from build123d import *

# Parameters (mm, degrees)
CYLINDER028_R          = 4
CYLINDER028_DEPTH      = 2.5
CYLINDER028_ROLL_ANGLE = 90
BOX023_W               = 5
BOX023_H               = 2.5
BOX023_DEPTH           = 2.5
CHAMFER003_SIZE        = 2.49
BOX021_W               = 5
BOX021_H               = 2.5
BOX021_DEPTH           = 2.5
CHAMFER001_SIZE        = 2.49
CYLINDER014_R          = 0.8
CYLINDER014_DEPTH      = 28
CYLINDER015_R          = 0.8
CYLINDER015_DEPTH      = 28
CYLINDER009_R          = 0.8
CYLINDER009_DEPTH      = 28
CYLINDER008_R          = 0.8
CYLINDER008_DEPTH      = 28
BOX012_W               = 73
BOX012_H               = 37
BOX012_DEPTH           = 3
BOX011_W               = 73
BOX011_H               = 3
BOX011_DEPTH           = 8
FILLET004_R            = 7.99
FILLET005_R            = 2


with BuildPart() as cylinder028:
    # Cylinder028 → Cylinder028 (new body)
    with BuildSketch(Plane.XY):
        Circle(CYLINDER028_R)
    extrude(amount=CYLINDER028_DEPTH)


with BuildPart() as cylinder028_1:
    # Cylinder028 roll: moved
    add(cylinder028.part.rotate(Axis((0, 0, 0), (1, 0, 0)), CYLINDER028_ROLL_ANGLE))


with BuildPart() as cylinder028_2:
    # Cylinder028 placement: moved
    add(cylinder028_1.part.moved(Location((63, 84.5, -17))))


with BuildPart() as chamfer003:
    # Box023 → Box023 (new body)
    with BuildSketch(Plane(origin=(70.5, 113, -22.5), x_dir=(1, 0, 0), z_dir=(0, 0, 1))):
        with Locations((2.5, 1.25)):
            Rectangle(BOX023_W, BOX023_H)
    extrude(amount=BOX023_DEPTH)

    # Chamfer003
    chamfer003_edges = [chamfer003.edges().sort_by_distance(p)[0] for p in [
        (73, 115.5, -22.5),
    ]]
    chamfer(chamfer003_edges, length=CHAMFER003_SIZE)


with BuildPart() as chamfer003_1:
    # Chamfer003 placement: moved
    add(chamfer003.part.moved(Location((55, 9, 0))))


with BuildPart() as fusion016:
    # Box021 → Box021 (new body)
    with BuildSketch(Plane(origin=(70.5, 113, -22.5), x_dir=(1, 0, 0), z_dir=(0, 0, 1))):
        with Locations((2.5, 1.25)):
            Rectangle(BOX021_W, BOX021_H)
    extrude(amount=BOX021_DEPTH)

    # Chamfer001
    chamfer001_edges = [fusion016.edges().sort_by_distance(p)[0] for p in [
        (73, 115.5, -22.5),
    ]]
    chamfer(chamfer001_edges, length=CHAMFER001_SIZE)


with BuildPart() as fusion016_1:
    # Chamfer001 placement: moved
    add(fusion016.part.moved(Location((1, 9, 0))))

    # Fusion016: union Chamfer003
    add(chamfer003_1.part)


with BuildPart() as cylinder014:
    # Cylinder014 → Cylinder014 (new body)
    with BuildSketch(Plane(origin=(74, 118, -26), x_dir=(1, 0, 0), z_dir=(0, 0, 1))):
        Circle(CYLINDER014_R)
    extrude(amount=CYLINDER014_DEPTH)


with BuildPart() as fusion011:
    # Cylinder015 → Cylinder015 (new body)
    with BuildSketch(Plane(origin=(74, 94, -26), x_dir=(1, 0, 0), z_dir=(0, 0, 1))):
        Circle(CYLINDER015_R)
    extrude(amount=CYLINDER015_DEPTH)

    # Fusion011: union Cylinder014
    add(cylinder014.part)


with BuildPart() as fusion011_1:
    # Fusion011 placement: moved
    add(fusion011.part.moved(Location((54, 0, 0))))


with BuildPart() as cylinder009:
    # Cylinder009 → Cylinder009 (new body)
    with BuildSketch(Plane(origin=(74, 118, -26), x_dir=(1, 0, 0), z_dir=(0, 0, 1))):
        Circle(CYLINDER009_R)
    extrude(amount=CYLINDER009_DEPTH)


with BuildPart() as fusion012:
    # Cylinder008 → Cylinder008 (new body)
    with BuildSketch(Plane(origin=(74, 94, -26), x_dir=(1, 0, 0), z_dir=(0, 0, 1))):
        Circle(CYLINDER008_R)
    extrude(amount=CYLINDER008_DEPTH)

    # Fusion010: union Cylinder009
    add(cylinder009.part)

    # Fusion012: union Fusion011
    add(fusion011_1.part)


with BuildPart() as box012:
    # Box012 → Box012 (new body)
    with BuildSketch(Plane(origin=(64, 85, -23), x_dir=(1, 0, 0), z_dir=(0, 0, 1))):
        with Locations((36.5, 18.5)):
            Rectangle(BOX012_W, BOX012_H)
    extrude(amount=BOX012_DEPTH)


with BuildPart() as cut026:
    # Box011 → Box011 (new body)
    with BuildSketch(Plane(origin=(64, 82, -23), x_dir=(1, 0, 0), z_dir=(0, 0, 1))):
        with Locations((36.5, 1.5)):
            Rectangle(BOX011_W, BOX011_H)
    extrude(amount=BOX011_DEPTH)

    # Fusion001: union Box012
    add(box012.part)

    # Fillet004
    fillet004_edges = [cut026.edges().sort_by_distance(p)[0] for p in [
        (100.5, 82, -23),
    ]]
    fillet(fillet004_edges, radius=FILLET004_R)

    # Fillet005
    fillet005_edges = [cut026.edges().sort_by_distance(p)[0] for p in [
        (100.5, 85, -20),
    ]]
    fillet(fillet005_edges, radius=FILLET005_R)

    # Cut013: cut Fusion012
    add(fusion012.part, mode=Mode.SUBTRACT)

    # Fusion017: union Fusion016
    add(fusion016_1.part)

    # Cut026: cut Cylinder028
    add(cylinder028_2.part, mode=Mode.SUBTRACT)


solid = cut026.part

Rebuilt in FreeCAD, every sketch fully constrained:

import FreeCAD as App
import Part
import Sketcher

V = App.Vector
Q = App.Units.Quantity


def edges_at(feature, points):
    """Names of the edges that pass closest to the given points."""
    edges = feature.Shape.Edges
    near = lambda p: min(range(len(edges)), key=lambda i: edges[i].distToShape(Part.Vertex(*p))[0])
    return sorted({f"Edge{near(p) + 1}" for p in points})

doc = App.newDocument("Part")
body = doc.addObject("PartDesign::Body", "Body")

sketch1 = body.newObject("Sketcher::SketchObject", "Sketch")
sketch1.AttachmentSupport = (doc.getObject("XY_Plane"), [""])
sketch1.MapMode = "FlatFace"
sketch1.addGeometry(Part.Circle(V(0, 0, 0), V(0, 0, 1), 4), False)
sketch1.addConstraint([
    Sketcher.Constraint("Coincident", 0, 3, -1, 1),
    Sketcher.Constraint("Diameter", 0, Q("8 mm")),
])
pad1 = body.newObject("PartDesign::Pad", "Pad")
pad1.Profile = sketch1
pad1.Length = 2.5
body2 = doc.addObject("PartDesign::Body", "Body001")
doc.recompute()

body.Placement = App.Placement(V(0, 0, 0), App.Rotation(V(1, 0, 0), 90))
boolean = body2.newObject("PartDesign::Boolean", "Boolean")
boolean.Type = "Fuse"
boolean.addObjects([body])
body3 = doc.addObject("PartDesign::Body", "Body002")
doc.recompute()

body2.Placement = App.Placement(V(63, 84.5, -17), App.Rotation(V(0, 0, 1), 0))
boolean2 = body3.newObject("PartDesign::Boolean", "Boolean001")
boolean2.Type = "Fuse"
boolean2.addObjects([body2])
body4 = doc.addObject("PartDesign::Body", "Body003")

sketch2 = body4.newObject("Sketcher::SketchObject", "Sketch001")
sketch2.AttachmentSupport = (doc.getObject("XY_Plane003"), [""])
sketch2.MapMode = "FlatFace"
sketch2.AttachmentOffset = App.Placement(V(0, 0, -22.5), App.Rotation())
sketch2.addGeometry([
    Part.LineSegment(V(70.5, 115.5, 0), V(70.5, 113, 0)),
    Part.LineSegment(V(70.5, 113, 0), V(75.5, 113, 0)),
    Part.LineSegment(V(75.5, 113, 0), V(75.5, 115.5, 0)),
    Part.LineSegment(V(75.5, 115.5, 0), V(70.5, 115.5, 0)),
], False)
sketch2.addConstraint([
    Sketcher.Constraint("Coincident", 0, 2, 1, 1),
    Sketcher.Constraint("Coincident", 1, 2, 2, 1),
    Sketcher.Constraint("Coincident", 2, 2, 3, 1),
    Sketcher.Constraint("Coincident", 3, 2, 0, 1),
    Sketcher.Constraint("Vertical", 0),
    Sketcher.Constraint("Horizontal", 1),
    Sketcher.Constraint("Vertical", 2),
    Sketcher.Constraint("Horizontal", 3),
    Sketcher.Constraint("DistanceX", 1, 1, 1, 2, Q("5 mm")),
    Sketcher.Constraint("DistanceY", 0, 2, 0, 1, Q("2.5 mm")),
    Sketcher.Constraint("DistanceY", -1, 1, 0, 2, Q("113 mm")),
    Sketcher.Constraint("DistanceX", -1, 1, 0, 2, Q("70.5 mm")),
])
pad2 = body4.newObject("PartDesign::Pad", "Pad001")
pad2.Profile = sketch2
pad2.Length = 2.5
doc.recompute()

chamfer = body4.newObject("PartDesign::Chamfer", "Chamfer")
chamfer.Base = (pad2, edges_at(pad2, [(73, 115.5, -22.5)]))
chamfer.Size = 2.49
body5 = doc.addObject("PartDesign::Body", "Body004")
doc.recompute()

body4.Placement = App.Placement(V(55, 9, 0), App.Rotation(V(0, 0, 1), 0))
boolean3 = body5.newObject("PartDesign::Boolean", "Boolean002")
boolean3.Type = "Fuse"
boolean3.addObjects([body4])
body6 = doc.addObject("PartDesign::Body", "Body005")

sketch3 = body6.newObject("Sketcher::SketchObject", "Sketch002")
sketch3.AttachmentSupport = (doc.getObject("XY_Plane005"), [""])
sketch3.MapMode = "FlatFace"
sketch3.AttachmentOffset = App.Placement(V(0, 0, -22.5), App.Rotation())
sketch3.addGeometry([
    Part.LineSegment(V(70.5, 115.5, 0), V(70.5, 113, 0)),
    Part.LineSegment(V(70.5, 113, 0), V(75.5, 113, 0)),
    Part.LineSegment(V(75.5, 113, 0), V(75.5, 115.5, 0)),
    Part.LineSegment(V(75.5, 115.5, 0), V(70.5, 115.5, 0)),
], False)
sketch3.addConstraint([
    Sketcher.Constraint("Coincident", 0, 2, 1, 1),
    Sketcher.Constraint("Coincident", 1, 2, 2, 1),
    Sketcher.Constraint("Coincident", 2, 2, 3, 1),
    Sketcher.Constraint("Coincident", 3, 2, 0, 1),
    Sketcher.Constraint("Vertical", 0),
    Sketcher.Constraint("Horizontal", 1),
    Sketcher.Constraint("Vertical", 2),
    Sketcher.Constraint("Horizontal", 3),
    Sketcher.Constraint("DistanceX", 1, 1, 1, 2, Q("5 mm")),
    Sketcher.Constraint("DistanceY", 0, 2, 0, 1, Q("2.5 mm")),
    Sketcher.Constraint("DistanceY", -1, 1, 0, 2, Q("113 mm")),
    Sketcher.Constraint("DistanceX", -1, 1, 0, 2, Q("70.5 mm")),
])
pad3 = body6.newObject("PartDesign::Pad", "Pad002")
pad3.Profile = sketch3
pad3.Length = 2.5
doc.recompute()

chamfer2 = body6.newObject("PartDesign::Chamfer", "Chamfer001")
chamfer2.Base = (pad3, edges_at(pad3, [(73, 115.5, -22.5)]))
chamfer2.Size = 2.49
body7 = doc.addObject("PartDesign::Body", "Body006")
body7.AllowCompound = True
doc.recompute()

body6.Placement = App.Placement(V(1, 9, 0), App.Rotation(V(0, 0, 1), 0))
boolean4 = body7.newObject("PartDesign::Boolean", "Boolean003")
boolean4.Type = "Fuse"
boolean4.addObjects([body6])
doc.recompute()

boolean5 = body7.newObject("PartDesign::Boolean", "Boolean004")
boolean5.Type = "Fuse"
boolean5.addObjects([body5])
body8 = doc.addObject("PartDesign::Body", "Body007")

sketch4 = body8.newObject("Sketcher::SketchObject", "Sketch003")
sketch4.AttachmentSupport = (doc.getObject("XY_Plane007"), [""])
sketch4.MapMode = "FlatFace"
sketch4.AttachmentOffset = App.Placement(V(0, 0, -26), App.Rotation())
sketch4.addGeometry(Part.Circle(V(74, 118, 0), V(0, 0, 1), 0.8), False)
sketch4.addConstraint([
    Sketcher.Constraint("Diameter", 0, Q("1.6 mm")),
    Sketcher.Constraint("DistanceX", -1, 1, 0, 3, Q("74 mm")),
    Sketcher.Constraint("DistanceY", -1, 1, 0, 3, Q("118 mm")),
])
pad4 = body8.newObject("PartDesign::Pad", "Pad003")
pad4.Profile = sketch4
pad4.Length = 28
body9 = doc.addObject("PartDesign::Body", "Body008")
body9.AllowCompound = True

sketch5 = body9.newObject("Sketcher::SketchObject", "Sketch004")
sketch5.AttachmentSupport = (doc.getObject("XY_Plane008"), [""])
sketch5.MapMode = "FlatFace"
sketch5.AttachmentOffset = App.Placement(V(0, 0, -26), App.Rotation())
sketch5.addGeometry(Part.Circle(V(74, 94, 0), V(0, 0, 1), 0.8), False)
sketch5.addConstraint([
    Sketcher.Constraint("Diameter", 0, Q("1.6 mm")),
    Sketcher.Constraint("DistanceX", -1, 1, 0, 3, Q("74 mm")),
    Sketcher.Constraint("DistanceY", -1, 1, 0, 3, Q("94 mm")),
])
pad5 = body9.newObject("PartDesign::Pad", "Pad004")
pad5.Profile = sketch5
pad5.Length = 28
doc.recompute()

boolean6 = body9.newObject("PartDesign::Boolean", "Boolean005")
boolean6.Type = "Fuse"
boolean6.addObjects([body8])
body10 = doc.addObject("PartDesign::Body", "Body009")
body10.AllowCompound = True
doc.recompute()

body9.Placement = App.Placement(V(54, 0, 0), App.Rotation(V(0, 0, 1), 0))
boolean7 = body10.newObject("PartDesign::Boolean", "Boolean006")
boolean7.Type = "Fuse"
boolean7.addObjects([body9])
body11 = doc.addObject("PartDesign::Body", "Body010")

sketch6 = body11.newObject("Sketcher::SketchObject", "Sketch005")
sketch6.AttachmentSupport = (doc.getObject("XY_Plane010"), [""])
sketch6.MapMode = "FlatFace"
sketch6.AttachmentOffset = App.Placement(V(0, 0, -26), App.Rotation())
sketch6.addGeometry(Part.Circle(V(74, 118, 0), V(0, 0, 1), 0.8), False)
sketch6.addConstraint([
    Sketcher.Constraint("Diameter", 0, Q("1.6 mm")),
    Sketcher.Constraint("DistanceX", -1, 1, 0, 3, Q("74 mm")),
    Sketcher.Constraint("DistanceY", -1, 1, 0, 3, Q("118 mm")),
])
pad6 = body11.newObject("PartDesign::Pad", "Pad005")
pad6.Profile = sketch6
pad6.Length = 28
body12 = doc.addObject("PartDesign::Body", "Body011")
body12.AllowCompound = True

sketch7 = body12.newObject("Sketcher::SketchObject", "Sketch006")
sketch7.AttachmentSupport = (doc.getObject("XY_Plane011"), [""])
sketch7.MapMode = "FlatFace"
sketch7.AttachmentOffset = App.Placement(V(0, 0, -26), App.Rotation())
sketch7.addGeometry(Part.Circle(V(74, 94, 0), V(0, 0, 1), 0.8), False)
sketch7.addConstraint([
    Sketcher.Constraint("Diameter", 0, Q("1.6 mm")),
    Sketcher.Constraint("DistanceX", -1, 1, 0, 3, Q("74 mm")),
    Sketcher.Constraint("DistanceY", -1, 1, 0, 3, Q("94 mm")),
])
pad7 = body12.newObject("PartDesign::Pad", "Pad006")
pad7.Profile = sketch7
pad7.Length = 28
doc.recompute()

boolean8 = body12.newObject("PartDesign::Boolean", "Boolean007")
boolean8.Type = "Fuse"
boolean8.addObjects([body11])
doc.recompute()

boolean9 = body12.newObject("PartDesign::Boolean", "Boolean008")
boolean9.Type = "Fuse"
boolean9.addObjects([body10])
body13 = doc.addObject("PartDesign::Body", "Body012")

sketch8 = body13.newObject("Sketcher::SketchObject", "Sketch007")
sketch8.AttachmentSupport = (doc.getObject("XY_Plane012"), [""])
sketch8.MapMode = "FlatFace"
sketch8.AttachmentOffset = App.Placement(V(0, 0, -23), App.Rotation())
sketch8.addGeometry([
    Part.LineSegment(V(64, 122, 0), V(64, 85, 0)),
    Part.LineSegment(V(64, 85, 0), V(137, 85, 0)),
    Part.LineSegment(V(137, 85, 0), V(137, 122, 0)),
    Part.LineSegment(V(137, 122, 0), V(64, 122, 0)),
], False)
sketch8.addConstraint([
    Sketcher.Constraint("Coincident", 0, 2, 1, 1),
    Sketcher.Constraint("Coincident", 1, 2, 2, 1),
    Sketcher.Constraint("Coincident", 2, 2, 3, 1),
    Sketcher.Constraint("Coincident", 3, 2, 0, 1),
    Sketcher.Constraint("Vertical", 0),
    Sketcher.Constraint("Horizontal", 1),
    Sketcher.Constraint("Vertical", 2),
    Sketcher.Constraint("Horizontal", 3),
    Sketcher.Constraint("DistanceX", 1, 1, 1, 2, Q("73 mm")),
    Sketcher.Constraint("DistanceY", 0, 2, 0, 1, Q("37 mm")),
    Sketcher.Constraint("DistanceX", -1, 1, 0, 2, Q("64 mm")),
    Sketcher.Constraint("DistanceY", -1, 1, 0, 2, Q("85 mm")),
])
pad8 = body13.newObject("PartDesign::Pad", "Pad007")
pad8.Profile = sketch8
pad8.Length = 3
body14 = doc.addObject("PartDesign::Body", "Body013")

sketch9 = body14.newObject("Sketcher::SketchObject", "Sketch008")
sketch9.AttachmentSupport = (doc.getObject("XY_Plane013"), [""])
sketch9.MapMode = "FlatFace"
sketch9.AttachmentOffset = App.Placement(V(0, 0, -23), App.Rotation())
sketch9.addGeometry([
    Part.LineSegment(V(64, 85, 0), V(64, 82, 0)),
    Part.LineSegment(V(64, 82, 0), V(137, 82, 0)),
    Part.LineSegment(V(137, 82, 0), V(137, 85, 0)),
    Part.LineSegment(V(137, 85, 0), V(64, 85, 0)),
], False)
sketch9.addConstraint([
    Sketcher.Constraint("Coincident", 0, 2, 1, 1),
    Sketcher.Constraint("Coincident", 1, 2, 2, 1),
    Sketcher.Constraint("Coincident", 2, 2, 3, 1),
    Sketcher.Constraint("Coincident", 3, 2, 0, 1),
    Sketcher.Constraint("Vertical", 0),
    Sketcher.Constraint("Horizontal", 1),
    Sketcher.Constraint("Vertical", 2),
    Sketcher.Constraint("Horizontal", 3),
    Sketcher.Constraint("DistanceX", 1, 1, 1, 2, Q("73 mm")),
    Sketcher.Constraint("DistanceY", 0, 2, 0, 1, Q("3 mm")),
    Sketcher.Constraint("DistanceX", -1, 1, 0, 2, Q("64 mm")),
    Sketcher.Constraint("DistanceY", -1, 1, 0, 2, Q("82 mm")),
])
pad9 = body14.newObject("PartDesign::Pad", "Pad008")
pad9.Profile = sketch9
pad9.Length = 8
doc.recompute()

boolean10 = body14.newObject("PartDesign::Boolean", "Boolean009")
boolean10.Type = "Fuse"
boolean10.addObjects([body13])
doc.recompute()

fillet = body14.newObject("PartDesign::Fillet", "Fillet")
fillet.Base = (boolean10, edges_at(boolean10, [(100.5, 82, -23)]))
fillet.Radius = 7.99
doc.recompute()

fillet2 = body14.newObject("PartDesign::Fillet", "Fillet001")
fillet2.Base = (fillet, edges_at(fillet, [(100.5, 85, -20)]))
fillet2.Radius = 2
doc.recompute()

boolean11 = body14.newObject("PartDesign::Boolean", "Boolean010")
boolean11.Type = "Cut"
boolean11.addObjects([body12])
doc.recompute()

boolean12 = body14.newObject("PartDesign::Boolean", "Boolean011")
boolean12.Type = "Fuse"
boolean12.addObjects([body7])
doc.recompute()

boolean13 = body14.newObject("PartDesign::Boolean", "Boolean012")
boolean13.Type = "Cut"
boolean13.addObjects([body3])

doc.recompute()
